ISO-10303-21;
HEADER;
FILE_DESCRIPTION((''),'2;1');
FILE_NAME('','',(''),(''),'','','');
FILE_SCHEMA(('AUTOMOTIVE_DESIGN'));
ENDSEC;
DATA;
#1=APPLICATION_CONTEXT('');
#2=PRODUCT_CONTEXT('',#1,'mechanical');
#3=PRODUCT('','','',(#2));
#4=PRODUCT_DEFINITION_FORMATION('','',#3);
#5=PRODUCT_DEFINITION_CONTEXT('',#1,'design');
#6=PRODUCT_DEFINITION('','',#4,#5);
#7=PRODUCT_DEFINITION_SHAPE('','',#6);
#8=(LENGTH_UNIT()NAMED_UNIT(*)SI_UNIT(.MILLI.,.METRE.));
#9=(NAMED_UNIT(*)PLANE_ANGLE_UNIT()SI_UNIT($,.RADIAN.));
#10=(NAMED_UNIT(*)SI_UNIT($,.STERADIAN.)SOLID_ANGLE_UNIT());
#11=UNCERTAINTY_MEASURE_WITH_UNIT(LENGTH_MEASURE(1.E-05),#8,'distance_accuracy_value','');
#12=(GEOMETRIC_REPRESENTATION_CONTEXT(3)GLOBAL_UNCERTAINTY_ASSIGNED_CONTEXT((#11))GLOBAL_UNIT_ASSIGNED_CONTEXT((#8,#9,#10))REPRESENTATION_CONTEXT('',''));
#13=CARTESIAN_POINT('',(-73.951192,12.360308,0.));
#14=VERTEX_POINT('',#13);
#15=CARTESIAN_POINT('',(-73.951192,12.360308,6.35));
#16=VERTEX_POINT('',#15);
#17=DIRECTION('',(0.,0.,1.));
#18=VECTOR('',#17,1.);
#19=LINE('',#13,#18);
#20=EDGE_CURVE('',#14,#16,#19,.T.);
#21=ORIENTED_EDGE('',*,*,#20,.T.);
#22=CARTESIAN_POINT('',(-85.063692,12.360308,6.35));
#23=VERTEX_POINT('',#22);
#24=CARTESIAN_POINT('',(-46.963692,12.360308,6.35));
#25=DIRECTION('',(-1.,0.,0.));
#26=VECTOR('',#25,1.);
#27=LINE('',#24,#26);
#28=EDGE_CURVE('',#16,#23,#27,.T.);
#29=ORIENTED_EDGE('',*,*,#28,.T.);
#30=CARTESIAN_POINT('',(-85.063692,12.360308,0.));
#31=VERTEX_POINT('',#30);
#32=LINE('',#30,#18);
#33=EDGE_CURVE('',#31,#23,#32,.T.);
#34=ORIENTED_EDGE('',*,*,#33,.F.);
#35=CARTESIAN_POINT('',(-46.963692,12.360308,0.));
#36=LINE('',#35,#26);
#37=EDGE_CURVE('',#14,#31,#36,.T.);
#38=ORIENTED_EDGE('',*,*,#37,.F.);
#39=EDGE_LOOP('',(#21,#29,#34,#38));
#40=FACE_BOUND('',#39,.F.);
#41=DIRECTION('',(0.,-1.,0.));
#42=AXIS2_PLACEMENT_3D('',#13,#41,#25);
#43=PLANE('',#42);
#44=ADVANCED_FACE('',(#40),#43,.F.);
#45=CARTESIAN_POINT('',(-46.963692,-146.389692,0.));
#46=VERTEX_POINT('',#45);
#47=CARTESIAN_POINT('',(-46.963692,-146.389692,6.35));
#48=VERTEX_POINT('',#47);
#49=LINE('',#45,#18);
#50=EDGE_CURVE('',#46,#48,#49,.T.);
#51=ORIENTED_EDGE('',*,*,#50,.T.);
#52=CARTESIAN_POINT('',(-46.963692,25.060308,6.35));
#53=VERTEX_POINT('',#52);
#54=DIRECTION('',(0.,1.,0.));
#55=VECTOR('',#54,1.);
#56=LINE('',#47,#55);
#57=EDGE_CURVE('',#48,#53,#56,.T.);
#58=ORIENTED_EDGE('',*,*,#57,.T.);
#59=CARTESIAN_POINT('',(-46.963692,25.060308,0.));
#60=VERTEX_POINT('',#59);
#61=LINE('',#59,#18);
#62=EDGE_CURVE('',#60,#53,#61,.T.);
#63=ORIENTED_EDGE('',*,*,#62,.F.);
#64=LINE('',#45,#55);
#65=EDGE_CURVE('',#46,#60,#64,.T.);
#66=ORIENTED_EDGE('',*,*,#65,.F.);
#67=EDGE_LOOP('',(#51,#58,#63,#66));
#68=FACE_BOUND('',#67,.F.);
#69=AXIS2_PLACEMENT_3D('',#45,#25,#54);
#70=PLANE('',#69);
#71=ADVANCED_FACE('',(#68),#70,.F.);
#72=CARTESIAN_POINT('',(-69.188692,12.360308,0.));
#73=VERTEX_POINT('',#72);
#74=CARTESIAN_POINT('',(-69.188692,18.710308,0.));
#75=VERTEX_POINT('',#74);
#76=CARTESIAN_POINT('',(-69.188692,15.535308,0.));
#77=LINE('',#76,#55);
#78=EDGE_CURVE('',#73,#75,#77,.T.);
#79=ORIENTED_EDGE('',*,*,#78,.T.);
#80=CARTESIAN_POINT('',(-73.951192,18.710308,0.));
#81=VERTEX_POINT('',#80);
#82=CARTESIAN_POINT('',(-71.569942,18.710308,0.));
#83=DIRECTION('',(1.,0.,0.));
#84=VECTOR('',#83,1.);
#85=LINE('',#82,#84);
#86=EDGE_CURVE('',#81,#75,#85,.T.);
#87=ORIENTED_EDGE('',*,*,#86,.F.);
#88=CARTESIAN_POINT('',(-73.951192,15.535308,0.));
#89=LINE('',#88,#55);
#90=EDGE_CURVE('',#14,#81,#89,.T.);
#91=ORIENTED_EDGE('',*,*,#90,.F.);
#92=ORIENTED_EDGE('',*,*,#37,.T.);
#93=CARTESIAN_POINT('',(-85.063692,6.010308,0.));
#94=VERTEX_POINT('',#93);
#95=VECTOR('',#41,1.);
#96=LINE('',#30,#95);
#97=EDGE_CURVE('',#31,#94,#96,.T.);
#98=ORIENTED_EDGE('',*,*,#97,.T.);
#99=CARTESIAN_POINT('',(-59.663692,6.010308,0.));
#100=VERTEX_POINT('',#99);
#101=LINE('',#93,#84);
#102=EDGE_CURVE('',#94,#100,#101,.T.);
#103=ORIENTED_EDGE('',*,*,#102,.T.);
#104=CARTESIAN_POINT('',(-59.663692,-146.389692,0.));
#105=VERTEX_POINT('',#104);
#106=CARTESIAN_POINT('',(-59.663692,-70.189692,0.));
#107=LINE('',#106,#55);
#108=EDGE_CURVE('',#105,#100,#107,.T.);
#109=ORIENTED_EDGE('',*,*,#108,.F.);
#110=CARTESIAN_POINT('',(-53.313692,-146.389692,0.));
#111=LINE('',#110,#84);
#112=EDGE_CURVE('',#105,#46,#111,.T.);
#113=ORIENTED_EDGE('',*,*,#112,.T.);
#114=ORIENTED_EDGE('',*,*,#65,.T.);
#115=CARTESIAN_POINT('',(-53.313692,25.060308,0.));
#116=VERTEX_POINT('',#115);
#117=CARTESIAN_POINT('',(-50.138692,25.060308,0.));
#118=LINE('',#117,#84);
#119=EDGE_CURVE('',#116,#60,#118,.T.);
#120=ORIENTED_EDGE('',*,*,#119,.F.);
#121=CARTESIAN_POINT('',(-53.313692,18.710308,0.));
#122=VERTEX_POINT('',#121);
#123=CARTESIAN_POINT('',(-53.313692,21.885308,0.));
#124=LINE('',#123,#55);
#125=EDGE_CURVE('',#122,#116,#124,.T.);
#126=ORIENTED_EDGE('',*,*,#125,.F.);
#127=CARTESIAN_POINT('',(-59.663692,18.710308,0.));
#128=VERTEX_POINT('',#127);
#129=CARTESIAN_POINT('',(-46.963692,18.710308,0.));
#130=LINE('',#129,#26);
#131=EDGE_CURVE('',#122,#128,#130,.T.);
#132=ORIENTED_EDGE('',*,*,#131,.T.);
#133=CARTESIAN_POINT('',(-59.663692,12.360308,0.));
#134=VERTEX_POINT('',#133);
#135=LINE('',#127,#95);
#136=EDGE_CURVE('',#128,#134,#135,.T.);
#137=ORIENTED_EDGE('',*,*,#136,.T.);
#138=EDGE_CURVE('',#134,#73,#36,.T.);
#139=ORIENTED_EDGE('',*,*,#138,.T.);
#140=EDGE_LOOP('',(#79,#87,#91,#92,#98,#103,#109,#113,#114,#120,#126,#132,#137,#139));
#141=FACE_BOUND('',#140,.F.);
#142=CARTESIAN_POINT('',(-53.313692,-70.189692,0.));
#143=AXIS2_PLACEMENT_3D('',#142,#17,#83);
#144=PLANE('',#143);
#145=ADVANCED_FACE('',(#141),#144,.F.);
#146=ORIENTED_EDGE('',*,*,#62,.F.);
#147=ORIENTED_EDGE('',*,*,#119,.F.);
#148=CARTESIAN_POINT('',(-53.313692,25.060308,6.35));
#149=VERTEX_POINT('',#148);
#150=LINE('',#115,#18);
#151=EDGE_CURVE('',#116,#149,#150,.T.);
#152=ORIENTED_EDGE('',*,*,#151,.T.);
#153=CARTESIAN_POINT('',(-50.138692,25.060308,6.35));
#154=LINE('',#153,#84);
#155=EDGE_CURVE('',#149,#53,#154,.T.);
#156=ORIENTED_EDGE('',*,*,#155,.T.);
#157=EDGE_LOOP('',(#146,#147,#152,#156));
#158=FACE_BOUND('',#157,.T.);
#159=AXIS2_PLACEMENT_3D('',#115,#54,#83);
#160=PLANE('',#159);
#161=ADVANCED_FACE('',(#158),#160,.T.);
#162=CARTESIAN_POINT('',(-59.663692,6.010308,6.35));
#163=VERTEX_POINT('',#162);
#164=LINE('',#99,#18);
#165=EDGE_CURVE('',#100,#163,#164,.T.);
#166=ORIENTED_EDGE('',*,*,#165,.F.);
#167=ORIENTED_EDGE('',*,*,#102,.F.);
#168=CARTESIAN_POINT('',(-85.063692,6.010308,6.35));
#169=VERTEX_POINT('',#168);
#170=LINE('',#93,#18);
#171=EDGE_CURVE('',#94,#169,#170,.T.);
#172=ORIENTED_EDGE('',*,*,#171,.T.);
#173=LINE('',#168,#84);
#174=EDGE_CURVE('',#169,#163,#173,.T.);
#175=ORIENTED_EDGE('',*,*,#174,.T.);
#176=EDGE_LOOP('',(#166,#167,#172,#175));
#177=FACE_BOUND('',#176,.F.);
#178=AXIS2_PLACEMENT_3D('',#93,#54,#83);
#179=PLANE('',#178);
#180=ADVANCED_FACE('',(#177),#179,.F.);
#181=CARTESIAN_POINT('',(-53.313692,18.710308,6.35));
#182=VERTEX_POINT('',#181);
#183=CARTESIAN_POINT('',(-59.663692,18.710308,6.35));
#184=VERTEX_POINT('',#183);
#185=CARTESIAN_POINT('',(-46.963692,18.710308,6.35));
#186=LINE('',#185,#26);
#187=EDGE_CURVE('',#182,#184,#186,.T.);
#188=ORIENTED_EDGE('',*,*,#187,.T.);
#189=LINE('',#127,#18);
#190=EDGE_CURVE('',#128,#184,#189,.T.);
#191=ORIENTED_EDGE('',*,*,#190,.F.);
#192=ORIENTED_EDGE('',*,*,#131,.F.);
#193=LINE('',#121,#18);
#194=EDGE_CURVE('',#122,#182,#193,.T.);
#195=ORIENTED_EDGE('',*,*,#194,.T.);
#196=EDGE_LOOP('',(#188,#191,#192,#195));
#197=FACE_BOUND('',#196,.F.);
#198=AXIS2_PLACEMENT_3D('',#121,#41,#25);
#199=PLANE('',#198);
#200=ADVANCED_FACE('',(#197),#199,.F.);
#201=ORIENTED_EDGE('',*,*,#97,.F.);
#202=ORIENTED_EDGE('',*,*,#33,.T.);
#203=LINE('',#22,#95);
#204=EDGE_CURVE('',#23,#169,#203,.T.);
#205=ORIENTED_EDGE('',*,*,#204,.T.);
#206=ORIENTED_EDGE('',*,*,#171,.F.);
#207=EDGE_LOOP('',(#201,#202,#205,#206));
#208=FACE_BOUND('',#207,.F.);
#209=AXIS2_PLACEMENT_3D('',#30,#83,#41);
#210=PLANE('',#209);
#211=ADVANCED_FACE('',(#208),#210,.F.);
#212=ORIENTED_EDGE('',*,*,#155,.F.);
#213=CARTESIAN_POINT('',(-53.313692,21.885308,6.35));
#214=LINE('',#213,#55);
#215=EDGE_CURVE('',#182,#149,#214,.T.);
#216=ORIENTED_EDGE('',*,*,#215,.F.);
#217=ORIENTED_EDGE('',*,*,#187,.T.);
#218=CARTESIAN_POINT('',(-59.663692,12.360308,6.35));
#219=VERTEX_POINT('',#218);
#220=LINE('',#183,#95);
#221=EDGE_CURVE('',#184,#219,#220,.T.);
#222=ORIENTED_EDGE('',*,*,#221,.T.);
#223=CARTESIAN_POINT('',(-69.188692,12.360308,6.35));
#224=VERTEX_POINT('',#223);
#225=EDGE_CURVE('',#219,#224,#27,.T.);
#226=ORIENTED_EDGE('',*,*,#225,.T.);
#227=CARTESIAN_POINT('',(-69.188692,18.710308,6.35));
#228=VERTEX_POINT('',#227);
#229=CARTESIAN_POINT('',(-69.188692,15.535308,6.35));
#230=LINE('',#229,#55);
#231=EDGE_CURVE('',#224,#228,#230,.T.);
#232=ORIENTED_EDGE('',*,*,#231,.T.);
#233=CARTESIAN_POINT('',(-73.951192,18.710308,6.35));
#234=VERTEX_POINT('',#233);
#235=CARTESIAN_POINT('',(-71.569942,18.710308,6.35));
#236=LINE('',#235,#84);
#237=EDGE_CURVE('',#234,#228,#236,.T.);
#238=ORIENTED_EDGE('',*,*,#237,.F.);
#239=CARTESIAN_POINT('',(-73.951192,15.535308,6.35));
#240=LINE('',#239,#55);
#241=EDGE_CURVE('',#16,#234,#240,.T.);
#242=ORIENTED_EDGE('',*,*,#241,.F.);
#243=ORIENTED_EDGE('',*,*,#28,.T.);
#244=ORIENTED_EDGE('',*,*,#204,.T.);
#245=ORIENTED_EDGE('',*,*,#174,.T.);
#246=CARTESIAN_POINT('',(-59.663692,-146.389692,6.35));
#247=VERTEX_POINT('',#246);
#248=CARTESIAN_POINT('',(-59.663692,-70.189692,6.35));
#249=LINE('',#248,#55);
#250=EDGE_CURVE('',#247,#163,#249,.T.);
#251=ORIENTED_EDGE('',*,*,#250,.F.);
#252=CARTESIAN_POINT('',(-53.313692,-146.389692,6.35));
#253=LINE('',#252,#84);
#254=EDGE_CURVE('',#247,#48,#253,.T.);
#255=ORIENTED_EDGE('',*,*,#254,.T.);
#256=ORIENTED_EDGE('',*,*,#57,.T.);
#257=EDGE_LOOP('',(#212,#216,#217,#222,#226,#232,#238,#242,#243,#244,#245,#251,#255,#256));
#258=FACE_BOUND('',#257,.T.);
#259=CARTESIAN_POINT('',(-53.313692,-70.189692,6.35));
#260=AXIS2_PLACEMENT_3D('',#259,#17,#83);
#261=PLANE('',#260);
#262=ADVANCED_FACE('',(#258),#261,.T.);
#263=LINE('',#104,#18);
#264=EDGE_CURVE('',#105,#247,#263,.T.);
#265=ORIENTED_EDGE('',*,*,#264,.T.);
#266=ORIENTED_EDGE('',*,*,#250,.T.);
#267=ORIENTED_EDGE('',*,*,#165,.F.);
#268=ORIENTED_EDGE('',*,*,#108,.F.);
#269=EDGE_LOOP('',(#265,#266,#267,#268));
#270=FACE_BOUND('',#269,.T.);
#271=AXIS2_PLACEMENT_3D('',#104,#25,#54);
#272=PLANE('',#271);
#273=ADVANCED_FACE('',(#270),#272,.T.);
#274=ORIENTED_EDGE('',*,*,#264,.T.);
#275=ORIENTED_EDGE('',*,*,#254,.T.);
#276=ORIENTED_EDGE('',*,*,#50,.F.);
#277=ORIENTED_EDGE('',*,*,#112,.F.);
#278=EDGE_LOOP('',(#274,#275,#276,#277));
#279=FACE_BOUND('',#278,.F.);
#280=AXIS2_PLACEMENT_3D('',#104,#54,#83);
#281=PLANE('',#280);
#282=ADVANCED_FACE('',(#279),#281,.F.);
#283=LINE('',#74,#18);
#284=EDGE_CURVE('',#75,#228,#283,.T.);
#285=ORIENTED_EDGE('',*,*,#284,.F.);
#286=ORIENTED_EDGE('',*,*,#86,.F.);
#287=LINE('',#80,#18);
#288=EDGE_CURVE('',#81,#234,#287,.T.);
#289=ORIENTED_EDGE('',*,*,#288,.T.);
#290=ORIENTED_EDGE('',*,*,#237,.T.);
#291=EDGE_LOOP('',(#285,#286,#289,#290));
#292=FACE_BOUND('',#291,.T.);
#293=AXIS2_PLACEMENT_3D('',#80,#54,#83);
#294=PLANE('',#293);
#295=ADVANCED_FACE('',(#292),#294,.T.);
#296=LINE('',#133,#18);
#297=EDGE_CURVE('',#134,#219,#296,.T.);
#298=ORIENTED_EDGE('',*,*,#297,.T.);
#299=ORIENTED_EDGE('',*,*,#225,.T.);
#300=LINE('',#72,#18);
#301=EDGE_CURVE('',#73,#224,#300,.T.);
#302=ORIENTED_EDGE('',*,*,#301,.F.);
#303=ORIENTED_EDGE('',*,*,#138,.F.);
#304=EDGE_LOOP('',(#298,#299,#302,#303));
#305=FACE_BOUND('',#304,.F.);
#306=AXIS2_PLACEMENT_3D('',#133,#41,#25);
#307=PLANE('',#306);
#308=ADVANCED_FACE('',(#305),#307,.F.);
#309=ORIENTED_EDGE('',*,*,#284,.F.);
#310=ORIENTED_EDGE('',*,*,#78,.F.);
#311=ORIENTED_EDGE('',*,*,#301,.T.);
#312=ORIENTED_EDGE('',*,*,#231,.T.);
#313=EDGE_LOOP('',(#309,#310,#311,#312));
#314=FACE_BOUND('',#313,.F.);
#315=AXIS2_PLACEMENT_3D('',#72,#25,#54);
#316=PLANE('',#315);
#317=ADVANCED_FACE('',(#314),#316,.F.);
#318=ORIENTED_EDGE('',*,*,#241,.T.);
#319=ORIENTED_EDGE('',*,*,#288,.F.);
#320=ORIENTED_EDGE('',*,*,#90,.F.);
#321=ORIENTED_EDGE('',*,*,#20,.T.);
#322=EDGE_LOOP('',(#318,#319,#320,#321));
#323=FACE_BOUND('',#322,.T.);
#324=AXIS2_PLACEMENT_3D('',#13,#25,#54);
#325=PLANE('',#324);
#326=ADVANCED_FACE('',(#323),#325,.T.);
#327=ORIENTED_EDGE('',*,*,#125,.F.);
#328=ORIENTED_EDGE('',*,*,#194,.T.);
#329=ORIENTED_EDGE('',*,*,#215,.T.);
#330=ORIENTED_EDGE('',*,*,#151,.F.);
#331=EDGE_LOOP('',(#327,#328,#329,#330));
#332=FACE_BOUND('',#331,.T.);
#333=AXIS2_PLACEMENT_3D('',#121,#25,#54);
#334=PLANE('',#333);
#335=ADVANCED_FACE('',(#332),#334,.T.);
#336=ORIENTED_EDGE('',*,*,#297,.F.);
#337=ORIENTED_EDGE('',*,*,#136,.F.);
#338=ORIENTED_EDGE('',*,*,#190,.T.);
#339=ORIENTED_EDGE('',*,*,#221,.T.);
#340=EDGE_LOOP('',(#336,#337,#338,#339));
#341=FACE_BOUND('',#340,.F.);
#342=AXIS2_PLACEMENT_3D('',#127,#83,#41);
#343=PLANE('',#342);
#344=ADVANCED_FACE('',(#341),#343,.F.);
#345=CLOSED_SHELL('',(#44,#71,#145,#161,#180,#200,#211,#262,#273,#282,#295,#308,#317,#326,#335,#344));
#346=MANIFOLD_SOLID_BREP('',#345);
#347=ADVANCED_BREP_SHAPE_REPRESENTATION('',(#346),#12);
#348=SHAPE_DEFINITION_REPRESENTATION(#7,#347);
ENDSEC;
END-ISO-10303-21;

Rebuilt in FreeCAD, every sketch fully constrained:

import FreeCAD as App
import Part
import Sketcher

V = App.Vector
Q = App.Units.Quantity


def add_polygon(sketch, points):
    """Adds a closed chain of lines whose ends are joined by coincident constraints."""
    first, n = sketch.GeometryCount, len(points)
    for a, b in zip(points, points[1:] + points[:1]):
        sketch.addGeometry(Part.LineSegment(App.Vector(*a, 0), App.Vector(*b, 0)), False)
    for i in range(n):
        sketch.addConstraint(Sketcher.Constraint("Coincident", first + i, 2, first + (i + 1) % n, 1))

doc = App.newDocument("Part")
body = doc.addObject("PartDesign::Body", "Body")

# Sketch on XY plane
sketch1 = body.newObject("Sketcher::SketchObject", "Sketch")
sketch1.AttachmentSupport = (doc.getObject("XY_Plane"), [""])
sketch1.MapMode = "FlatFace"
add_polygon(sketch1, [(-59.7, 6), (-59.7, -146.4), (-47, -146.4), (-47, 25.1), (-53.3, 25.1), (-53.3, 18.7), (-59.7, 18.7), (-59.7, 12.4), (-69.2, 12.4), (-69.2, 18.7), (-74, 18.7), (-74, 12.4), (-85.1, 12.4), (-85.1, 6)])  # lines 0-13
sketch1.addConstraint(Sketcher.Constraint("Vertical", 0))
sketch1.addConstraint(Sketcher.Constraint("Horizontal", 1))
sketch1.addConstraint(Sketcher.Constraint("Vertical", 2))
sketch1.addConstraint(Sketcher.Constraint("Horizontal", 3))
sketch1.addConstraint(Sketcher.Constraint("Vertical", 4))
sketch1.addConstraint(Sketcher.Constraint("Horizontal", 5))
sketch1.addConstraint(Sketcher.Constraint("Vertical", 6))
sketch1.addConstraint(Sketcher.Constraint("Horizontal", 7))
sketch1.addConstraint(Sketcher.Constraint("Vertical", 8))
sketch1.addConstraint(Sketcher.Constraint("Horizontal", 9))
sketch1.addConstraint(Sketcher.Constraint("Vertical", 10))
sketch1.addConstraint(Sketcher.Constraint("Horizontal", 11))
sketch1.addConstraint(Sketcher.Constraint("Vertical", 12))
sketch1.addConstraint(Sketcher.Constraint("Horizontal", 13))
sketch1.addConstraint(Sketcher.Constraint("Horizontal", 5, 2, 8, 2))
sketch1.addConstraint(Sketcher.Constraint("Horizontal", 7, 2, 10, 2))
sketch1.addConstraint(Sketcher.Constraint("Vertical", 0, 2, 5, 2))
sketch1.addConstraint(Sketcher.Constraint("Equal", 3, 5))
sketch1.addConstraint(Sketcher.Constraint("Equal", 5, 4))
sketch1.addConstraint(Sketcher.Constraint("Equal", 4, 6))
sketch1.addConstraint(Sketcher.Constraint("Equal", 10, 12))
sketch1.addConstraint(Sketcher.Constraint("DistanceX", 13, 1, 13, 2, Q("1 in")))
sketch1.addConstraint(Sketcher.Constraint("DistanceY", 0, 2, 0, 1, Q("6 in")))
sketch1.addConstraint(Sketcher.Constraint("DistanceX", 1, 1, 1, 2, Q("0.5 in")))
sketch1.addConstraint(Sketcher.Constraint("DistanceX", 7, 2, 7, 1, Q("0.375 in")))
sketch1.addConstraint(Sketcher.Constraint("DistanceX", 9, 2, 9, 1, Q("0.1875 in")))
sketch1.addConstraint(Sketcher.Constraint("DistanceX", 0, 2, -1, 1, Q("59.663692 mm")))
sketch1.addConstraint(Sketcher.Constraint("DistanceY", 0, 2, -1, 1, Q("146.389692 mm")))
pad1 = body.newObject("PartDesign::Pad", "Pad")
pad1.Profile = sketch1
pad1.Length = Q("0.25 in")

doc.recompute()
